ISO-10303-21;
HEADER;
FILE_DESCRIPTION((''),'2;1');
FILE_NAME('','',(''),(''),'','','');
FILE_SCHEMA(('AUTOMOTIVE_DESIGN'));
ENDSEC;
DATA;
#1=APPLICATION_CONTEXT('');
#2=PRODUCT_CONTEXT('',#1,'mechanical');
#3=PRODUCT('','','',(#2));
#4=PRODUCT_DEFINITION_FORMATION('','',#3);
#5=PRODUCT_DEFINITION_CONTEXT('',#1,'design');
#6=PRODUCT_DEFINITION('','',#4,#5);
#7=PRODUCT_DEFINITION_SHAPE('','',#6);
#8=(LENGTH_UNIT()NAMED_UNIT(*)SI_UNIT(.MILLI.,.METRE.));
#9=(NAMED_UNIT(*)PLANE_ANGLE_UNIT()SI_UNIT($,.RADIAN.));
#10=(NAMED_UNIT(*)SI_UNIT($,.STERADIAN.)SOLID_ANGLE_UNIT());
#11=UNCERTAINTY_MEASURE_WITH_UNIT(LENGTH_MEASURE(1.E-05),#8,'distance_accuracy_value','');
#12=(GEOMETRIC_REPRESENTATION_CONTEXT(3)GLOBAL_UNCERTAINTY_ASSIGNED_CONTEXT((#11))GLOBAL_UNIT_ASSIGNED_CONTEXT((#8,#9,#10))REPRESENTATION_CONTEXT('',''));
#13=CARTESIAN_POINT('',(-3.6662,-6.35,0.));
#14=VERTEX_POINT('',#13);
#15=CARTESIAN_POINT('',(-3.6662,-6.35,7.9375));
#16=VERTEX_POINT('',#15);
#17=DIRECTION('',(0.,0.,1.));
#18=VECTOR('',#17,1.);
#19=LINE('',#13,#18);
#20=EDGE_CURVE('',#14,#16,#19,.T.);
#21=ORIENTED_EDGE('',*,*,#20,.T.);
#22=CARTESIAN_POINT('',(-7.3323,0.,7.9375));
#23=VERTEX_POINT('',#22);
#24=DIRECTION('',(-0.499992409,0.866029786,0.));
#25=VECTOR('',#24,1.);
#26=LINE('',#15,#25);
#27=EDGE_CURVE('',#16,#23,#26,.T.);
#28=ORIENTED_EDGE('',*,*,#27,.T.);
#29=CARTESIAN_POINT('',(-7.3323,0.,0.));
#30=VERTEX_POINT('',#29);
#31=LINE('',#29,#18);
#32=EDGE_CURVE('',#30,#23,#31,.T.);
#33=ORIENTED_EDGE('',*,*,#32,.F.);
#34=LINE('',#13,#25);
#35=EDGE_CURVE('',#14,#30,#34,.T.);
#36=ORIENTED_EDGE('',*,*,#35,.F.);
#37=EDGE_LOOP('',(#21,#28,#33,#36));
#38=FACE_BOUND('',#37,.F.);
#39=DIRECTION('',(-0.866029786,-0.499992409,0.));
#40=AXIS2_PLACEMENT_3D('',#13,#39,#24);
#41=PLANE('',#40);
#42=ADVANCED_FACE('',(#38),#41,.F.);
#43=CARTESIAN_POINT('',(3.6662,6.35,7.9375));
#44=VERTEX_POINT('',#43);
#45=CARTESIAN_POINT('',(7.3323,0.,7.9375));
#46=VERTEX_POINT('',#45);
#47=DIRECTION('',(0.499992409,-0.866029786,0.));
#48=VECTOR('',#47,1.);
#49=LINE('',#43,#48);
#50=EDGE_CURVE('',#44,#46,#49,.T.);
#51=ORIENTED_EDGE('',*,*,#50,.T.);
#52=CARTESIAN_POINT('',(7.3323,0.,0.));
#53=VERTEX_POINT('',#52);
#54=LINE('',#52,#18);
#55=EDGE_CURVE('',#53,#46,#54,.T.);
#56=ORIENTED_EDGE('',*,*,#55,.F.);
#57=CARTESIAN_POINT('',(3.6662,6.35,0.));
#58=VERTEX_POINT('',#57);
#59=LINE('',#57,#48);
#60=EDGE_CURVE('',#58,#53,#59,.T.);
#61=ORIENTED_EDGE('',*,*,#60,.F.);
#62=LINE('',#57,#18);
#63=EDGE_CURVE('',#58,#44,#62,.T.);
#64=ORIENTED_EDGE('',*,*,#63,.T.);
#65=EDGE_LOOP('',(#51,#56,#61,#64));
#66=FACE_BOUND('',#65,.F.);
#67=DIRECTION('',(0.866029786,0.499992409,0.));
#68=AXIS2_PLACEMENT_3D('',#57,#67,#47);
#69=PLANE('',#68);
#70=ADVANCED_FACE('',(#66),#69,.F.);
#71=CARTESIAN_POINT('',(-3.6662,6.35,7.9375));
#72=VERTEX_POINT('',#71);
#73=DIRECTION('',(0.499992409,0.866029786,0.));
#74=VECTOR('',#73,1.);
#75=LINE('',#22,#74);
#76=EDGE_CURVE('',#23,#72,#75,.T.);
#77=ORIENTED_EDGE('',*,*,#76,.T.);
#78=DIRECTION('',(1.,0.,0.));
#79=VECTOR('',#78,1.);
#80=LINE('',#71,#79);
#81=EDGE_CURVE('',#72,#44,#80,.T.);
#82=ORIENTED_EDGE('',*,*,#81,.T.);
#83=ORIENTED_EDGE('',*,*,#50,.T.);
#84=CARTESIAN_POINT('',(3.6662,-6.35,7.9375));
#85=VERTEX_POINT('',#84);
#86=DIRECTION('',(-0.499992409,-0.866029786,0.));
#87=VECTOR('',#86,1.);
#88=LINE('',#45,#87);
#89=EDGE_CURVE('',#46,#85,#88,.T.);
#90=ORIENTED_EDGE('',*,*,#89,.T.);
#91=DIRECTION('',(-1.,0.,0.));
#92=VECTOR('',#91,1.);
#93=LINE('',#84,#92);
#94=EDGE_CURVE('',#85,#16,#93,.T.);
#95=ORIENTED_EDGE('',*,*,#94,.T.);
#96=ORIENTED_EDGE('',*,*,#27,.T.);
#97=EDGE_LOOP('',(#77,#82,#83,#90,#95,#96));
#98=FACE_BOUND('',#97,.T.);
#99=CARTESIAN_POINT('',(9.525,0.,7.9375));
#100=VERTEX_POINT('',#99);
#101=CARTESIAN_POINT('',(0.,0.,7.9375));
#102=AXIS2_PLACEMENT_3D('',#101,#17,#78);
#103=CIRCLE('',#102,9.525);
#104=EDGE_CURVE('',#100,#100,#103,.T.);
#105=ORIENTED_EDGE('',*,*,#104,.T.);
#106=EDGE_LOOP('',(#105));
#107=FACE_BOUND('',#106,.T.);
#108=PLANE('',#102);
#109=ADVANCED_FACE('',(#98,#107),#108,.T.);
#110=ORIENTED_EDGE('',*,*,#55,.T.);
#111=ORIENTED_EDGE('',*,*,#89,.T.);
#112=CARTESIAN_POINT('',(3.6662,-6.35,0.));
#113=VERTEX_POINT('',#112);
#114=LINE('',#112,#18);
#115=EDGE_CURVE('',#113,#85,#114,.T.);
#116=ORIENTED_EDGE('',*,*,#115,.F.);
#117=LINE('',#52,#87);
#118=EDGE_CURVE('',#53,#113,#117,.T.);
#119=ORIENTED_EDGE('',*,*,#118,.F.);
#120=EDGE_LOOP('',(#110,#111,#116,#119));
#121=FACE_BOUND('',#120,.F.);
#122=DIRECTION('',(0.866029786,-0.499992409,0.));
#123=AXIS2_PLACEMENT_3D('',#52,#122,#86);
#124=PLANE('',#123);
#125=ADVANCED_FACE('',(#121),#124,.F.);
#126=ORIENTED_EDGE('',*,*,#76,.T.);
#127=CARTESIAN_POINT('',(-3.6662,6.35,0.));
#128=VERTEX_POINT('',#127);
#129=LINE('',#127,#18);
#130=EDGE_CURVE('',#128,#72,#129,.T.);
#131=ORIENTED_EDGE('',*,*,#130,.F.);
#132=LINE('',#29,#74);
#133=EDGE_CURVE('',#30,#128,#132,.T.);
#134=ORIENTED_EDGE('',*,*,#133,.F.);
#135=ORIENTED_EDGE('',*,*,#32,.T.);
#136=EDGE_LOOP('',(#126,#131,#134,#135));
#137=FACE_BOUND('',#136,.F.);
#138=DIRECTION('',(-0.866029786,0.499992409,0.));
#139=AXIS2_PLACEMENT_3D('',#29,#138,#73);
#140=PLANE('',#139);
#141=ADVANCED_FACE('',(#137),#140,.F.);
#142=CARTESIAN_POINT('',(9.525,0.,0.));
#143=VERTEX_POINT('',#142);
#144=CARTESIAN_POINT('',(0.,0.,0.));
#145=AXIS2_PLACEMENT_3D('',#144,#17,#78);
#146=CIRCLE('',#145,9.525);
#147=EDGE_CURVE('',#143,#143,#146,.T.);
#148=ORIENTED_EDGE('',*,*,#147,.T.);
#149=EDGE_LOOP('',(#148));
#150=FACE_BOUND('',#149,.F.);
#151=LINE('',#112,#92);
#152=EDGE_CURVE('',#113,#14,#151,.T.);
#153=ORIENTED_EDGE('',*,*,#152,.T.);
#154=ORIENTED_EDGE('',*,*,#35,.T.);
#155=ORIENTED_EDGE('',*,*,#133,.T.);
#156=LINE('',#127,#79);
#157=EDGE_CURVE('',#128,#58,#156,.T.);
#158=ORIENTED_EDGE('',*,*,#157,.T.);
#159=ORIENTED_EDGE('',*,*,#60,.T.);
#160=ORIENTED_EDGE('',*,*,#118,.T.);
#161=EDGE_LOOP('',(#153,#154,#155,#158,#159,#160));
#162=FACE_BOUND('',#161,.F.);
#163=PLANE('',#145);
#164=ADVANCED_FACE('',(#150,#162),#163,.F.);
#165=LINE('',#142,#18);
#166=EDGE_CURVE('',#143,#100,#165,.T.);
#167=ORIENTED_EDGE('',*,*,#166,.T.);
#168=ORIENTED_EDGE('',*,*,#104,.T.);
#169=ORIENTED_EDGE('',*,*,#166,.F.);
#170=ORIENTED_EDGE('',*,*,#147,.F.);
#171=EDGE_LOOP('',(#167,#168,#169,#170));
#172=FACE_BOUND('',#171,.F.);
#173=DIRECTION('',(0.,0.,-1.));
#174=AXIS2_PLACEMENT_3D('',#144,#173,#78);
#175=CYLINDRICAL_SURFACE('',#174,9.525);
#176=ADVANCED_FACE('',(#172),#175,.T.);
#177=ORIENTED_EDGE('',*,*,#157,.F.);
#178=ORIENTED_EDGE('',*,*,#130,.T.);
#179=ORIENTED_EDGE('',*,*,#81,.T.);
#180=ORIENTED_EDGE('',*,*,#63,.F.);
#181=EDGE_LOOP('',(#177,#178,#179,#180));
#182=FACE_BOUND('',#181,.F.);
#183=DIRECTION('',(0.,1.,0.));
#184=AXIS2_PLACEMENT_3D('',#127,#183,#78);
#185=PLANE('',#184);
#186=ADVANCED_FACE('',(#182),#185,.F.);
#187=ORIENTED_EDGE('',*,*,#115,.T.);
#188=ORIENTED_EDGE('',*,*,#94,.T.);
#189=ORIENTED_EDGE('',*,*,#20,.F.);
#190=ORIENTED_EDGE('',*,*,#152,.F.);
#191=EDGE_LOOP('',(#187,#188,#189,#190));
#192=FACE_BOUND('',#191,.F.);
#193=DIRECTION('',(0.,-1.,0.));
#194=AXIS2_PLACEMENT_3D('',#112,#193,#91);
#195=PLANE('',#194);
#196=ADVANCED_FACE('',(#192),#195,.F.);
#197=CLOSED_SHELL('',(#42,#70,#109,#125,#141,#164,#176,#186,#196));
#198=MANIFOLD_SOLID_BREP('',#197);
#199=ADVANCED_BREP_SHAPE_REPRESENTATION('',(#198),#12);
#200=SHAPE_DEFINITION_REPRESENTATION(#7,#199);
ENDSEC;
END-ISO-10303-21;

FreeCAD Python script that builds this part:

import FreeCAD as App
import Part
import Sketcher
Q = App.Units.Quantity


def add_polygon(sketch, points):
    """Adds a closed chain of lines whose ends are joined by coincident constraints."""
    first, n = sketch.GeometryCount, len(points)
    for a, b in zip(points, points[1:] + points[:1]):
        sketch.addGeometry(Part.LineSegment(App.Vector(*a, 0), App.Vector(*b, 0)), False)
    for i in range(n):
        sketch.addConstraint(Sketcher.Constraint("Coincident", first + i, 2, first + (i + 1) % n, 1))

doc = App.newDocument("Part")
params = doc.addObject("Spreadsheet::Sheet", "Params")
for row, (alias, value) in enumerate([
    ("sketch1_diameter", "0.75 in"),
    ("pad1_length", "0.3125 in"),
], start=1):
    params.set(f"A{row}", alias)
    params.set(f"B{row}", "=" + value)
    params.setAlias(f"B{row}", alias)

body = doc.addObject("PartDesign::Body", "Body")

# Sketch on XY plane
sketch1 = doc.addObject("Sketcher::SketchObject", "Sketch")
body.addObject(sketch1)
sketch1.AttachmentSupport = (doc.XY_Plane, [""])
sketch1.MapMode = "FlatFace"
sketch1.addGeometry(Part.Circle(App.Vector(0, 0, 0), App.Vector(0, 0, 1), 10), False)  # 0
add_polygon(sketch1, [(4, 6), (7, 0), (4, -6), (-4, -6), (-7, 0), (-4, 6)])  # lines 1-6
sketch1.addConstraint(Sketcher.Constraint("Horizontal", 3))
sketch1.addConstraint(Sketcher.Constraint("Horizontal", 6))
sketch1.addConstraint(Sketcher.Constraint("Coincident", 0, 3, -1, 1))
sketch1.addConstraint(Sketcher.Constraint("Symmetric", 1, 2, 4, 2, -1, 1))
sketch1.addConstraint(Sketcher.Constraint("Symmetric", 2, 2, 5, 2, -1, 1))
sketch1.addConstraint(Sketcher.Constraint("PointOnObject", 1, 2, -1))
sketch1.addConstraint(Sketcher.Constraint("Parallel", 1, 4))
sketch1.addConstraint(Sketcher.Constraint("Vertical", 3, 2, 5, 2))
sketch1.addConstraint(Sketcher.Constraint("Diameter", 0, Q("0.75 in")))
sketch1.addConstraint(Sketcher.Constraint("DistanceY", 3, 2, 5, 2, Q("0.5 in")))
sketch1.addConstraint(Sketcher.Constraint("Angle", 1, Q("-60.0005 deg")))
sketch1.addConstraint(Sketcher.Constraint("DistanceX", 3, 2, 1, 2, Q("0.433 in")))
sketch1.setExpression("Constraints[14]", "Params.sketch1_diameter")
pad1 = doc.addObject("PartDesign::Pad", "Pad")
body.addObject(pad1)
pad1.Profile = sketch1
pad1.setExpression("Length", "Params.pad1_length")

doc.recompute()
